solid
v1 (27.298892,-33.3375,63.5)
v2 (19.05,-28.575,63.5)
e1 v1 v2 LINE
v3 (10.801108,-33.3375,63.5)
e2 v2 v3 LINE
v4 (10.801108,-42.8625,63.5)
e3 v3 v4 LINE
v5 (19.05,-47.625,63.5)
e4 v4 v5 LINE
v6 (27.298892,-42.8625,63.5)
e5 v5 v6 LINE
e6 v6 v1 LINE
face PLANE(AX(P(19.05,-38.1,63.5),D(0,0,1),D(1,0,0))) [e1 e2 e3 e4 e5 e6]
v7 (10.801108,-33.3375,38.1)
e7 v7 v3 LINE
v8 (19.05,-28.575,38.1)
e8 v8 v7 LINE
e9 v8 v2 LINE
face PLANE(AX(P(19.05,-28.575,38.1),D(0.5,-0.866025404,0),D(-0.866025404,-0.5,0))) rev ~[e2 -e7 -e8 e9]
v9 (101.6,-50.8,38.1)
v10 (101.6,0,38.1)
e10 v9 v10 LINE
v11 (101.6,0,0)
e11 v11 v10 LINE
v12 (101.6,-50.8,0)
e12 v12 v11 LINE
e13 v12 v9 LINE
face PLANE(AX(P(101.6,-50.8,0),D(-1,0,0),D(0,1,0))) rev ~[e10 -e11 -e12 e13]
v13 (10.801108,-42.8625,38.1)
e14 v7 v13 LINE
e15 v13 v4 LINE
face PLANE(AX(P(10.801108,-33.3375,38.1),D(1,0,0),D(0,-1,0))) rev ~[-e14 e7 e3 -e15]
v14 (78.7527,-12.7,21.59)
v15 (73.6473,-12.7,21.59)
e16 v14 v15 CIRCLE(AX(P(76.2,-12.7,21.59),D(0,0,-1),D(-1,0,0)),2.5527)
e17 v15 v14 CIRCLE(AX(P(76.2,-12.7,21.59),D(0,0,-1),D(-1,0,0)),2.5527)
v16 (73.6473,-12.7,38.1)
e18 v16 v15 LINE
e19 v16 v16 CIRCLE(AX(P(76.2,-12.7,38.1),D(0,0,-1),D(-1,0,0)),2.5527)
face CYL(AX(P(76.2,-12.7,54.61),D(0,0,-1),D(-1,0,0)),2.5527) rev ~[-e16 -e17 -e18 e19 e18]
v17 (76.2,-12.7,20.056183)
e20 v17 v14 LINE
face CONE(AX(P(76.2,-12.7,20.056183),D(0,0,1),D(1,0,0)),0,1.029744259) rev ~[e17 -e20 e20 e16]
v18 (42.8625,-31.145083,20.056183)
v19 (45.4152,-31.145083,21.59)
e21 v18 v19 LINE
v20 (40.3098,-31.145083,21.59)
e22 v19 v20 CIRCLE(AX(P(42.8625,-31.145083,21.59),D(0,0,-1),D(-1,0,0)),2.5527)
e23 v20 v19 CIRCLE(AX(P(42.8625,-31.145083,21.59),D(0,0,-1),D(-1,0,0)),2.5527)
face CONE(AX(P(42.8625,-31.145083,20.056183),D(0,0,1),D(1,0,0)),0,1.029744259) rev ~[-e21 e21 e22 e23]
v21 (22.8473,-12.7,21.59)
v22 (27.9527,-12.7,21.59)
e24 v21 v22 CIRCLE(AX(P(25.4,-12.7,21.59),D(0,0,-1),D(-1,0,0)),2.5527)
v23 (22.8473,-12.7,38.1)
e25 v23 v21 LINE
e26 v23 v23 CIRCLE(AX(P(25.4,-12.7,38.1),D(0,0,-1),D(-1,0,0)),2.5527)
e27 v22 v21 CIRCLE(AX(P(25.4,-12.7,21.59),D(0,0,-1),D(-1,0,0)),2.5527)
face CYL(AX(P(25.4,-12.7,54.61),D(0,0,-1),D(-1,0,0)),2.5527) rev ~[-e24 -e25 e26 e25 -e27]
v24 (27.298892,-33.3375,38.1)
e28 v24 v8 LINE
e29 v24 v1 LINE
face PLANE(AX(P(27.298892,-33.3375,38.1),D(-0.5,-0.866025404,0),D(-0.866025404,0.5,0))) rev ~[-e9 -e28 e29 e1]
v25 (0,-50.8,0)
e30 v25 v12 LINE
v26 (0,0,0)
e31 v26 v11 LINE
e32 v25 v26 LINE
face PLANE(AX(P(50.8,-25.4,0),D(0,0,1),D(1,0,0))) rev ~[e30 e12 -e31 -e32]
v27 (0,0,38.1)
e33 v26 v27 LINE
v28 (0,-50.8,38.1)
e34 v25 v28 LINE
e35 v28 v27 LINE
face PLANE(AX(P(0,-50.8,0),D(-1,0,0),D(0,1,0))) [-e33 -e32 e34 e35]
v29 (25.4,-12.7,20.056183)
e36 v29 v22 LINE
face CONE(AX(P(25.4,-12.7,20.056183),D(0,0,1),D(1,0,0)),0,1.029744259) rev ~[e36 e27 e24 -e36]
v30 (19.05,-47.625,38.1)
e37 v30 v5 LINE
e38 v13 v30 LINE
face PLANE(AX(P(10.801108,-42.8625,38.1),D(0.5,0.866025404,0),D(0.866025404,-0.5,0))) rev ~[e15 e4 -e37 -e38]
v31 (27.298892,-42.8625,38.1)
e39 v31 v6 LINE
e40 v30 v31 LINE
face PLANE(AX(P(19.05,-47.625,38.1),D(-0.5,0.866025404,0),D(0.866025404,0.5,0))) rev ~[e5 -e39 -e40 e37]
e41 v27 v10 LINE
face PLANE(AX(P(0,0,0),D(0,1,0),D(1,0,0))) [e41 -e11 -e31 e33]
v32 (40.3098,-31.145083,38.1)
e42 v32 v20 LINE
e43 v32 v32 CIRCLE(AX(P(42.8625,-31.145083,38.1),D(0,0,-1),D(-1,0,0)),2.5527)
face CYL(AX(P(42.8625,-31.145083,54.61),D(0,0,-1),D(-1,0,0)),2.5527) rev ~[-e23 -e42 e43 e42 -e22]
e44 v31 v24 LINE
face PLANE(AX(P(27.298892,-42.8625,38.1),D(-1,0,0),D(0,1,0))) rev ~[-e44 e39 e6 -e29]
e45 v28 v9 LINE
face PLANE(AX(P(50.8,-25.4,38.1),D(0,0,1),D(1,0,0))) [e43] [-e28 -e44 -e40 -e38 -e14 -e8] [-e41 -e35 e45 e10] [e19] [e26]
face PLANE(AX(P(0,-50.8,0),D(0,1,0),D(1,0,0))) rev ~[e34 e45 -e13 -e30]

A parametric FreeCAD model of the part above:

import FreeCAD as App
import Part
import Sketcher
from FreeCAD import Vector
Q = App.Units.Quantity


def add_polygon(sketch, points):
    """Adds a closed chain of lines whose ends are joined by coincident constraints."""
    first, n = sketch.GeometryCount, len(points)
    for a, b in zip(points, points[1:] + points[:1]):
        sketch.addGeometry(Part.LineSegment(App.Vector(*a, 0), App.Vector(*b, 0)), False)
    for i in range(n):
        sketch.addConstraint(Sketcher.Constraint("Coincident", first + i, 2, first + (i + 1) % n, 1))

doc = App.newDocument("Part")
body = doc.addObject("PartDesign::Body", "Body")

# Sketch on XY plane
sketch1 = doc.addObject("Sketcher::SketchObject", "Sketch")
body.addObject(sketch1)
sketch1.AttachmentSupport = (doc.XY_Plane, [""])
sketch1.MapMode = "FlatFace"
add_polygon(sketch1, [(0, 0), (0, -51), (102, -51), (102, 0)])  # lines 0-3
sketch1.addConstraint([
    Sketcher.Constraint("Vertical", 0),
    Sketcher.Constraint("Horizontal", 1),
    Sketcher.Constraint("Vertical", 2),
    Sketcher.Constraint("Horizontal", 3),
    Sketcher.Constraint("Coincident", 3, 2, -1, 1),
    Sketcher.Constraint("DistanceX", 1, 1, 1, 2, Q("4 in")),
    Sketcher.Constraint("DistanceY", 0, 2, 0, 1, Q("2 in")),
])
pad1 = doc.addObject("PartDesign::Pad", "Pad")
body.addObject(pad1)
pad1.Profile = sketch1
pad1.Length = Q("1.5 in")

# Sketch on XY plane
sketch2 = doc.addObject("Sketcher::SketchObject", "Sketch001")
body.addObject(sketch2)
sketch2.AttachmentSupport = (doc.XY_Plane, [""])
sketch2.MapMode = "FlatFace"
sketch2.AttachmentOffset = App.Placement(Vector(0, 0, 1.5 * 25.4), App.Rotation())
sketch2.addGeometry([
    Part.Circle(Vector(25.4, -12.7, 0), Vector(0, 0, 1), 2.6),
    Part.Circle(Vector(42.9, -31.1, 0), Vector(0, 0, 1), 2.6),
    Part.Circle(Vector(76.2, -12.7, 0), Vector(0, 0, 1), 2.6),
], False)
sketch2.addConstraint([
    Sketcher.Constraint("Equal", 0, 1),
    Sketcher.Constraint("Equal", 1, 2),
    Sketcher.Constraint("Horizontal", 0, 3, 2, 3),
    Sketcher.Constraint("Diameter", 0, Q("0.201 in")),
    Sketcher.Constraint("DistanceX", -1, 1, 0, 3, Q("1 in")),
    Sketcher.Constraint("DistanceX", -1, 1, 2, 3, Q("3 in")),
    Sketcher.Constraint("DistanceY", 0, 3, -1, 1, Q("0.5 in")),
    Sketcher.Constraint("DistanceX", -1, 1, 1, 3, Q("1.6875 in")),
    Sketcher.Constraint("DistanceY", 1, 3, -1, 1, 31.145083),
])
doc.recompute()
hole = doc.addObject("PartDesign::Hole", "Hole")
body.addObject(hole)
hole.Profile = sketch2
hole.ThreadType = "None"
hole.Diameter = Q("0.201 in")
hole.DepthType = "Dimension"
hole.Depth = Q("0.65 in")
hole.DrillPoint = "Angled"
hole.DrillPointAngle = 118

# Sketch on XY plane
sketch3 = doc.addObject("Sketcher::SketchObject", "Sketch002")
body.addObject(sketch3)
sketch3.AttachmentSupport = (doc.XY_Plane, [""])
sketch3.MapMode = "FlatFace"
sketch3.AttachmentOffset = App.Placement(Vector(0, 0, 1.5 * 25.4), App.Rotation())
add_polygon(sketch3, [(19, -48), (27, -43), (27, -33), (19, -29), (11, -33), (11, -43)])  # lines 0-5
sketch3.addConstraint([
    Sketcher.Constraint("Vertical", 1),
    Sketcher.Constraint("Vertical", 4),
    Sketcher.Constraint("Parallel", 0, 3),
    Sketcher.Constraint("Parallel", 2, 5),
    Sketcher.Constraint("Horizontal", 1, 2, 3, 2),
    Sketcher.Constraint("Horizontal", 0, 2, 4, 2),
    Sketcher.Constraint("Vertical", 2, 2, 5, 2),
    Sketcher.Constraint("Angle", 0, Q("30 deg")),
    Sketcher.Constraint("DistanceY", 1, 1, 1, 2, Q("0.375 in")),
    Sketcher.Constraint("DistanceX", -1, 1, 2, 2, Q("0.75 in")),
    Sketcher.Constraint("DistanceY", 5, 2, 2, 2, Q("0.75 in")),
    Sketcher.Constraint("DistanceY", 0, 2, -1, 1, Q("1.6875 in")),
])
pad2 = doc.addObject("PartDesign::Pad", "Pad001")
body.addObject(pad2)
pad2.Profile = sketch3
pad2.Length = Q("1 in")

doc.recompute()
